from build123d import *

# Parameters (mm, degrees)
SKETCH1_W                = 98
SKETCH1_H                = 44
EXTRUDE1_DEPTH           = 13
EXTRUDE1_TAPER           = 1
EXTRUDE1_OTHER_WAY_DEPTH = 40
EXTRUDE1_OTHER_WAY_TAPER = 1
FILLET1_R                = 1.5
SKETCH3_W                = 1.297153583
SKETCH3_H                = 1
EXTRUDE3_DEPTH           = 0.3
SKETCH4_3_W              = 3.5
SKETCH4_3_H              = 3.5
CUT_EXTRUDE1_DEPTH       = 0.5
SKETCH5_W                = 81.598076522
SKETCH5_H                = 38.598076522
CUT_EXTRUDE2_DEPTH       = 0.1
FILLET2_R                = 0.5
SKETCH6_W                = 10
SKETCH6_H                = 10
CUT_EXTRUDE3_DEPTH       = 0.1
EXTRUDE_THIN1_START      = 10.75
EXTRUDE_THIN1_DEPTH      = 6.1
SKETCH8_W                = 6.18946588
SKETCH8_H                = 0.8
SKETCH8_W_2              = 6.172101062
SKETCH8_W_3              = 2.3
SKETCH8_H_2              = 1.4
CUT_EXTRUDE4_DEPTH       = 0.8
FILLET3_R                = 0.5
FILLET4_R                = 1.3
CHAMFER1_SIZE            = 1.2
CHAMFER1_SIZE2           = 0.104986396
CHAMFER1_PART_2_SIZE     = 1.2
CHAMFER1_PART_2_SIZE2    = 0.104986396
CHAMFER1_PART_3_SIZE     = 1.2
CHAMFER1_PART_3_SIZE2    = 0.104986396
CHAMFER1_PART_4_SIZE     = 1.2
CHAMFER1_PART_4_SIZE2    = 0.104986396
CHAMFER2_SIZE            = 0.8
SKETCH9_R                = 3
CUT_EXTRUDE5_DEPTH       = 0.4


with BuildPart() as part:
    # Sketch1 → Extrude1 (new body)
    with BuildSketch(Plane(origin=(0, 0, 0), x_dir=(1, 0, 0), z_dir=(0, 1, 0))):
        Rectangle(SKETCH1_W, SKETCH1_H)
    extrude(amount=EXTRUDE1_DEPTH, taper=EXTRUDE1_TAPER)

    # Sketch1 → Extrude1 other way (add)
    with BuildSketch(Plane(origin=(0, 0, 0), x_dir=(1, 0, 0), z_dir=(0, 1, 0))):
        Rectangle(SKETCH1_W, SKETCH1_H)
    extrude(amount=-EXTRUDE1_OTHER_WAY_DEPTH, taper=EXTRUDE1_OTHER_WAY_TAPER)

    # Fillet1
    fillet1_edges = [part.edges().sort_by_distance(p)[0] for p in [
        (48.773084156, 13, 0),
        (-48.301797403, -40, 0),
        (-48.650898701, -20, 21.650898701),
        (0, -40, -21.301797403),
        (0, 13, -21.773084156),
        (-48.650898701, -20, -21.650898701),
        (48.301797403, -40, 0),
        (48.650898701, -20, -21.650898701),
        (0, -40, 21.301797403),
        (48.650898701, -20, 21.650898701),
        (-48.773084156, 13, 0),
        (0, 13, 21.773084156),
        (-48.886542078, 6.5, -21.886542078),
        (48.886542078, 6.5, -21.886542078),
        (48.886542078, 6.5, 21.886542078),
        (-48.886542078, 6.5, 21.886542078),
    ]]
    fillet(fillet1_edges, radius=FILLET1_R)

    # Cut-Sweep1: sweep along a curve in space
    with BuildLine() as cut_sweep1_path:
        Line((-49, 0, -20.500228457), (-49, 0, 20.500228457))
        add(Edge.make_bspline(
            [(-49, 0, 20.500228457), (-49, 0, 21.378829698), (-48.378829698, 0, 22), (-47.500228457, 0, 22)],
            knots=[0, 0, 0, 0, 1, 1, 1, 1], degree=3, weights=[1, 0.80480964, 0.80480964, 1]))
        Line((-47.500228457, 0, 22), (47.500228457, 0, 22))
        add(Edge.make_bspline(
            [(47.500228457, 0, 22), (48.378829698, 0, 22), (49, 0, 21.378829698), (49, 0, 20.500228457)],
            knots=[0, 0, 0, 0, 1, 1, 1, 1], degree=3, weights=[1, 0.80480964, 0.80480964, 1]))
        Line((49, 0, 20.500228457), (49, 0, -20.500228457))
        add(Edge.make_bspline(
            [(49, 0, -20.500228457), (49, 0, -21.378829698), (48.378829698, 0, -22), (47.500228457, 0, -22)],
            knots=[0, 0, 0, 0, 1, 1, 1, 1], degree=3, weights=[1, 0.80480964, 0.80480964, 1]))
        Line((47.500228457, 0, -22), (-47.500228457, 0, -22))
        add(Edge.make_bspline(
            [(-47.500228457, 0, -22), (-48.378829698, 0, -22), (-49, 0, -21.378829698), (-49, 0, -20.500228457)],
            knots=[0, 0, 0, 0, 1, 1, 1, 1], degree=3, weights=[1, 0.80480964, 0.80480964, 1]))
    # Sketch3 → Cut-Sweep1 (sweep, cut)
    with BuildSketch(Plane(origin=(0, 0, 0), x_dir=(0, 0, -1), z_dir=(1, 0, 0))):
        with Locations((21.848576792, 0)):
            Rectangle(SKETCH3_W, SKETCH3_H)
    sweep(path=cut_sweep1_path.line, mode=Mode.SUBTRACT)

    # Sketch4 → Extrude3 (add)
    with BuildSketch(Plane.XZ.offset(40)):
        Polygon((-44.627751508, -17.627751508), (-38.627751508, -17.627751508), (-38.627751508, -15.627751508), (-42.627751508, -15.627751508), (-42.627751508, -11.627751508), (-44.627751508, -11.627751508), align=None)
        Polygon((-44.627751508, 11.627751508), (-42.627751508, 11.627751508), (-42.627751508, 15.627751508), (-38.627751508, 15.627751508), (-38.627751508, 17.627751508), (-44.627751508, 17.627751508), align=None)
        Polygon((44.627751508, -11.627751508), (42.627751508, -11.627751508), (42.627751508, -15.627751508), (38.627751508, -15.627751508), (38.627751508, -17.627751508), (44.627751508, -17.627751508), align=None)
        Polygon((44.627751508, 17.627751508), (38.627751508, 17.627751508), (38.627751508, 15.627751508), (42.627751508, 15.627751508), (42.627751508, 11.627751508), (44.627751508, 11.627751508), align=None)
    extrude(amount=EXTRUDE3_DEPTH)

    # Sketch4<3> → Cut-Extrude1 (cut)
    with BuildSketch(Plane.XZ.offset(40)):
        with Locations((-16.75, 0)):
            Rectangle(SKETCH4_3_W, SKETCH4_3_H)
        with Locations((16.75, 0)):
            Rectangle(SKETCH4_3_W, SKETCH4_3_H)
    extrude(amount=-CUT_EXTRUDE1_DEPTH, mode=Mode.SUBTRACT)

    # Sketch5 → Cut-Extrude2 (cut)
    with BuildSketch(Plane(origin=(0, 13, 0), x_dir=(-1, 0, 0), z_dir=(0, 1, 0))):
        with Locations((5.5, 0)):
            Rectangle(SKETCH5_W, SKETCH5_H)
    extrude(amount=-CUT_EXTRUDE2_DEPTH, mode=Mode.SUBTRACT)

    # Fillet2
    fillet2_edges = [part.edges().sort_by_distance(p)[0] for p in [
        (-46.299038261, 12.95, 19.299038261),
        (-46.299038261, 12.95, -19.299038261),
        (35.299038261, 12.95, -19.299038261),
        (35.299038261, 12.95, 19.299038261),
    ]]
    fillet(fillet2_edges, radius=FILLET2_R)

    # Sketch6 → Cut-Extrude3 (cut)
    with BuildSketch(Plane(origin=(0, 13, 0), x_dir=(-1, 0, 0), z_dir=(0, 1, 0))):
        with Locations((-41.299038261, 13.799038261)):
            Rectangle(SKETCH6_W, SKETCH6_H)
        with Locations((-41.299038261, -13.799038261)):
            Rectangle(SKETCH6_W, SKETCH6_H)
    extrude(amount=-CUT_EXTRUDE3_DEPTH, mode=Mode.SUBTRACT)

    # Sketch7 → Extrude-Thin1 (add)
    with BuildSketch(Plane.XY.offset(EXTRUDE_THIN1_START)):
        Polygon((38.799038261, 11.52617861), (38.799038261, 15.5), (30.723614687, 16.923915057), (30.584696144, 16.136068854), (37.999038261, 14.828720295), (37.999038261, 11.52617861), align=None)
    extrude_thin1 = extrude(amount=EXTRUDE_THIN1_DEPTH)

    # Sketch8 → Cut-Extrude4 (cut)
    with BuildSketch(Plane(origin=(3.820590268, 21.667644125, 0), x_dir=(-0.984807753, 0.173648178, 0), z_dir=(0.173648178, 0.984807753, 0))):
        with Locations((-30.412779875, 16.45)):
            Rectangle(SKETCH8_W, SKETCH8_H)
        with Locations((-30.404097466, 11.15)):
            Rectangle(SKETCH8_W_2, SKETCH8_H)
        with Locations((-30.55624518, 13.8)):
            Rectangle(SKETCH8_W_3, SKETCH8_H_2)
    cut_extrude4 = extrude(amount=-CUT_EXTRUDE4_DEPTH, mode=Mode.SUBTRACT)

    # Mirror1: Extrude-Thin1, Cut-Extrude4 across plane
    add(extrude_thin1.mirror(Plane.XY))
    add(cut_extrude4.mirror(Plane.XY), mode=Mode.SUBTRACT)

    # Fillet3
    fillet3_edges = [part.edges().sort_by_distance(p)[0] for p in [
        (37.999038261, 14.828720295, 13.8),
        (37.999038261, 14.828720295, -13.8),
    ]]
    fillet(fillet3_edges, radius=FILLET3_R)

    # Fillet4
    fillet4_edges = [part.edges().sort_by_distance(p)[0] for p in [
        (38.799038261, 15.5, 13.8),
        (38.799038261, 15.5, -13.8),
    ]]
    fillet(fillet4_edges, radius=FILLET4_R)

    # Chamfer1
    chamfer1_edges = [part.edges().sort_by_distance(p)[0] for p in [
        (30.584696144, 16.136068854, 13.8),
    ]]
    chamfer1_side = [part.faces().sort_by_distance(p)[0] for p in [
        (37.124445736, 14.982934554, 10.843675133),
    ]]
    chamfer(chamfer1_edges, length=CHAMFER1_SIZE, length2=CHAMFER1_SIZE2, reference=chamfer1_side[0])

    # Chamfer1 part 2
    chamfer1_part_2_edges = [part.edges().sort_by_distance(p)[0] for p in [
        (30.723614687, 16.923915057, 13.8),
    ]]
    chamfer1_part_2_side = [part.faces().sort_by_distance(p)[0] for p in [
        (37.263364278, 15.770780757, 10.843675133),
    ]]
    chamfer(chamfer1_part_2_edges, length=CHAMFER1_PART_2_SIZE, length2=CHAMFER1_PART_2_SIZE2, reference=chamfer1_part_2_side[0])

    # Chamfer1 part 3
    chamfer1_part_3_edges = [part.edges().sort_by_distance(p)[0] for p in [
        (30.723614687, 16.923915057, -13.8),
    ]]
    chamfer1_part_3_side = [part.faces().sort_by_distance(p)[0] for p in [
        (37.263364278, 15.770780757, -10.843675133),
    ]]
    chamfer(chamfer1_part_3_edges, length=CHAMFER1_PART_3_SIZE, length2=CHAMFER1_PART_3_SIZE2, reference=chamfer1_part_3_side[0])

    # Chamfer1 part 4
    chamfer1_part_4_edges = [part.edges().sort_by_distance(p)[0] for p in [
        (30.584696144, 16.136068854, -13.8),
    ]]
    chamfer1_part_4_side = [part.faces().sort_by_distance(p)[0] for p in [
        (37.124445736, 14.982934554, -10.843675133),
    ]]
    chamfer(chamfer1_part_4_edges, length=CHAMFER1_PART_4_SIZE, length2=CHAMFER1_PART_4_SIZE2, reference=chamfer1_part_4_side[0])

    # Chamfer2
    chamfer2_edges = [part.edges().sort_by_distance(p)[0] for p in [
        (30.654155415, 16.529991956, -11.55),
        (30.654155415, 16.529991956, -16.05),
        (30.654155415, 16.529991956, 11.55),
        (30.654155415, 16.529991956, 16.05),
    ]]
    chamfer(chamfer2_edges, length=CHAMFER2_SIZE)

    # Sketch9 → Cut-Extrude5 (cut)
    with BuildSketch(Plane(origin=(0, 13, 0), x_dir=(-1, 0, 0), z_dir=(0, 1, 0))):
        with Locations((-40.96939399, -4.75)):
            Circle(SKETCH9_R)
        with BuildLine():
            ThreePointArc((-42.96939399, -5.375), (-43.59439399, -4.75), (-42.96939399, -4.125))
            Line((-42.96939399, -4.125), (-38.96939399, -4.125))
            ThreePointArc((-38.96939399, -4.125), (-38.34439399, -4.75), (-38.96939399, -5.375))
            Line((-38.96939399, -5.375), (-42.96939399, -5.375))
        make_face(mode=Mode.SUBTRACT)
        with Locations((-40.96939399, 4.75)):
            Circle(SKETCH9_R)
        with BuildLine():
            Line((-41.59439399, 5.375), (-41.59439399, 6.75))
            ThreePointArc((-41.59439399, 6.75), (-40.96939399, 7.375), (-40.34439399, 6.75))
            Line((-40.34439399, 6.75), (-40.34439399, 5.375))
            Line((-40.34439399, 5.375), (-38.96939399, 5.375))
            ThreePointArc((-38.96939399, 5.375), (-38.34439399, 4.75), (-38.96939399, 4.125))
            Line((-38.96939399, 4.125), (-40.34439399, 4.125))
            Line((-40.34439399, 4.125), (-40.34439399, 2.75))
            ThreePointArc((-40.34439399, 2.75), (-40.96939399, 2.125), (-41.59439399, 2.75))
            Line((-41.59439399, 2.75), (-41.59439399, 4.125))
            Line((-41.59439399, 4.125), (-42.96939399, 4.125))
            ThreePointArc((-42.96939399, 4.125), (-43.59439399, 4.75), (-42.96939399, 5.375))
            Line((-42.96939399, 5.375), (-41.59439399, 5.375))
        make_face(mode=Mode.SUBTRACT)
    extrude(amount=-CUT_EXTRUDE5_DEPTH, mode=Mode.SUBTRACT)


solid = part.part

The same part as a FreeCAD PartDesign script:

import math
import FreeCAD as App
import Part
import Sketcher

V = App.Vector
Q = App.Units.Quantity


def edges_at(feature, points):
    """Names of the edges that pass closest to the given points."""
    edges = feature.Shape.Edges
    near = lambda p: min(range(len(edges)), key=lambda i: edges[i].distToShape(Part.Vertex(*p))[0])
    return sorted({f"Edge{near(p) + 1}" for p in points})


def add_polygon(sketch, points):
    """Adds a closed chain of lines whose ends are joined by coincident constraints."""
    first, n = sketch.GeometryCount, len(points)
    for a, b in zip(points, points[1:] + points[:1]):
        sketch.addGeometry(Part.LineSegment(App.Vector(*a, 0), App.Vector(*b, 0)), False)
    for i in range(n):
        sketch.addConstraint(Sketcher.Constraint("Coincident", first + i, 2, first + (i + 1) % n, 1))

doc = App.newDocument("Part")
body = doc.addObject("PartDesign::Body", "Body")

# Sketch on XZ plane
sketch1 = body.newObject("Sketcher::SketchObject", "Sketch")
sketch1.AttachmentSupport = (doc.getObject("XZ_Plane"), [""])
sketch1.MapMode = "FlatFace"
add_polygon(sketch1, [(-49, -22), (-49, 22), (49, 22), (49, -22)])  # lines 0-3
sketch1.addConstraint([
    Sketcher.Constraint("Vertical", 0),
    Sketcher.Constraint("Horizontal", 1),
    Sketcher.Constraint("Vertical", 2),
    Sketcher.Constraint("Horizontal", 3),
    Sketcher.Constraint("Symmetric", 0, 2, 2, 2, -1, 1),
    Sketcher.Constraint("DistanceX", 1, 1, 1, 2, Q("98 mm")),
    Sketcher.Constraint("DistanceY", 0, 1, 0, 2, Q("44 mm")),
])
pad1 = body.newObject("PartDesign::Pad", "Pad")
pad1.Profile = sketch1
pad1.Length = 13
pad1.Reversed = True
pad1.TaperAngle = -1

# Sketch on XZ plane
sketch2 = body.newObject("Sketcher::SketchObject", "Sketch001")
sketch2.AttachmentSupport = (doc.getObject("XZ_Plane"), [""])
sketch2.MapMode = "FlatFace"
add_polygon(sketch2, [(-49, -22), (-49, 22), (49, 22), (49, -22)])  # lines 0-3
sketch2.addConstraint([
    Sketcher.Constraint("Vertical", 0),
    Sketcher.Constraint("Horizontal", 1),
    Sketcher.Constraint("Vertical", 2),
    Sketcher.Constraint("Horizontal", 3),
    Sketcher.Constraint("Symmetric", 0, 2, 2, 2, -1, 1),
    Sketcher.Constraint("DistanceX", 1, 1, 1, 2, Q("98 mm")),
    Sketcher.Constraint("DistanceY", 0, 1, 0, 2, Q("44 mm")),
])
pad2 = body.newObject("PartDesign::Pad", "Pad001")
pad2.Profile = sketch2
pad2.Length = 40
pad2.TaperAngle = -1
doc.recompute()

fillet = body.newObject("PartDesign::Fillet", "Fillet")
fillet.Base = (pad2, ["Edge1"])
fillet.UseAllEdges = True
fillet.Radius = 1.5

# Sketch on YZ plane
sketch3 = body.newObject("Sketcher::SketchObject", "Sketch002")
sketch3.AttachmentSupport = (doc.getObject("YZ_Plane"), [""])
sketch3.MapMode = "FlatFace"
add_polygon(sketch3, [(0.5, -21.2), (-0.5, -21.2), (-0.5, -22.5), (0.5, -22.5)])  # lines 0-3
sketch3.addConstraint([
    Sketcher.Constraint("Horizontal", 0),
    Sketcher.Constraint("Vertical", 1),
    Sketcher.Constraint("Horizontal", 2),
    Sketcher.Constraint("Vertical", 3),
    Sketcher.Constraint("DistanceX", 0, 2, 0, 1, Q("1 mm")),
    Sketcher.Constraint("DistanceX", 0, 2, -1, 1, Q("0.5 mm")),
    Sketcher.Constraint("DistanceY", 0, 2, -1, 1, Q("21.2 mm")),
    Sketcher.Constraint("DistanceY", 1, 2, 1, 1, Q("1.297154 mm")),
])

# Sketch on XZ plane
sketch4 = body.newObject("Sketcher::SketchObject", "Sketch003")
sketch4.AttachmentSupport = (doc.getObject("XZ_Plane"), [""])
sketch4.MapMode = "FlatFace"
sketch4.addGeometry([
    Part.LineSegment(V(-49, -20.500228, 0), V(-49, 20.500228, 0)),  # 0
    Part.BSplineCurve([V(-49, 20.500228, 0), V(-49, 21.37883, 0), V(-48.37883, 22, 0), V(-47.500228, 22, 0)], [4, 4], [0, 1], False, 3, [1, 0.80480964, 0.80480964, 1], False),  # 1
    Part.LineSegment(V(-47.500228, 22, 0), V(47.500228, 22, 0)),  # 2
    Part.BSplineCurve([V(47.500228, 22, 0), V(48.37883, 22, 0), V(49, 21.37883, 0), V(49, 20.500228, 0)], [4, 4], [0, 1], False, 3, [1, 0.80480964, 0.80480964, 1], False),  # 3
    Part.LineSegment(V(49, 20.500228, 0), V(49, -20.500228, 0)),  # 4
    Part.BSplineCurve([V(49, -20.500228, 0), V(49, -21.37883, 0), V(48.37883, -22, 0), V(47.500228, -22, 0)], [4, 4], [0, 1], False, 3, [1, 0.80480964, 0.80480964, 1], False),  # 5
    Part.LineSegment(V(47.500228, -22, 0), V(-47.500228, -22, 0)),  # 6
    Part.BSplineCurve([V(-47.500228, -22, 0), V(-48.37883, -22, 0), V(-49, -21.37883, 0), V(-49, -20.500228, 0)], [4, 4], [0, 1], False, 3, [1, 0.80480964, 0.80480964, 1], False),  # 7
], False)
sketch4.addConstraint([
    Sketcher.Constraint("Block", 1),
    Sketcher.Constraint("Block", 3),
    Sketcher.Constraint("Block", 5),
    Sketcher.Constraint("Block", 7),
    Sketcher.Constraint("Coincident", 0, 2, 1, 1),
    Sketcher.Constraint("Coincident", 1, 2, 2, 1),
    Sketcher.Constraint("Coincident", 2, 2, 3, 1),
    Sketcher.Constraint("Coincident", 3, 2, 4, 1),
    Sketcher.Constraint("Coincident", 4, 2, 5, 1),
    Sketcher.Constraint("Coincident", 5, 2, 6, 1),
    Sketcher.Constraint("Coincident", 6, 2, 7, 1),
    Sketcher.Constraint("Coincident", 7, 2, 0, 1),
])
doc.recompute()

subtractivepipe = body.newObject("PartDesign::SubtractivePipe", "SubtractivePipe")
subtractivepipe.Profile = sketch3
subtractivepipe.Spine = (sketch4, ["Edge1", "Edge2", "Edge3", "Edge4", "Edge5", "Edge6", "Edge7", "Edge8"])

# Sketch on XZ plane
sketch5 = body.newObject("Sketcher::SketchObject", "Sketch004")
sketch5.AttachmentSupport = (doc.getObject("XZ_Plane"), [""])
sketch5.MapMode = "FlatFace"
sketch5.AttachmentOffset = App.Placement(V(0, 0, 40), App.Rotation())
add_polygon(sketch5, [(-44.6, -17.6), (-38.6, -17.6), (-38.6, -15.6), (-42.6, -15.6), (-42.6, -11.6), (-44.6, -11.6)])  # lines 0-5
add_polygon(sketch5, [(-44.6, 11.6), (-42.6, 11.6), (-42.6, 15.6), (-38.6, 15.6), (-38.6, 17.6), (-44.6, 17.6)])  # lines 6-11
add_polygon(sketch5, [(44.6, -11.6), (42.6, -11.6), (42.6, -15.6), (38.6, -15.6), (38.6, -17.6), (44.6, -17.6)])  # lines 12-17
add_polygon(sketch5, [(44.6, 17.6), (38.6, 17.6), (38.6, 15.6), (42.6, 15.6), (42.6, 11.6), (44.6, 11.6)])  # lines 18-23
sketch5.addConstraint([
    Sketcher.Constraint("Horizontal", 0),
    Sketcher.Constraint("Vertical", 1),
    Sketcher.Constraint("Horizontal", 2),
    Sketcher.Constraint("Vertical", 3),
    Sketcher.Constraint("Horizontal", 4),
    Sketcher.Constraint("Vertical", 5),
    Sketcher.Constraint("Horizontal", 6),
    Sketcher.Constraint("Vertical", 7),
    Sketcher.Constraint("Horizontal", 8),
    Sketcher.Constraint("Vertical", 9),
    Sketcher.Constraint("Horizontal", 10),
    Sketcher.Constraint("Vertical", 11),
    Sketcher.Constraint("Horizontal", 12),
    Sketcher.Constraint("Vertical", 13),
    Sketcher.Constraint("Horizontal", 14),
    Sketcher.Constraint("Vertical", 15),
    Sketcher.Constraint("Horizontal", 16),
    Sketcher.Constraint("Vertical", 17),
    Sketcher.Constraint("Horizontal", 18),
    Sketcher.Constraint("Vertical", 19),
    Sketcher.Constraint("Horizontal", 20),
    Sketcher.Constraint("Vertical", 21),
    Sketcher.Constraint("Horizontal", 22),
    Sketcher.Constraint("Vertical", 23),
    Sketcher.Constraint("Symmetric", 6, 2, 12, 2, -1, 1),
    Sketcher.Constraint("Symmetric", 8, 2, 14, 2, -1, 1),
    Sketcher.Constraint("Symmetric", 10, 2, 16, 2, -1, 1),
    Sketcher.Constraint("Symmetric", 0, 2, 18, 2, -1, 1),
    Sketcher.Constraint("Symmetric", 2, 2, 20, 2, -1, 1),
    Sketcher.Constraint("Symmetric", 4, 2, 22, 2, -1, 1),
    Sketcher.Constraint("Symmetric", 3, 2, 12, 2, -2),
    Sketcher.Constraint("Symmetric", 1, 2, 14, 2, -2),
    Sketcher.Constraint("Symmetric", 5, 2, 16, 2, -2),
    Sketcher.Constraint("Equal", 22, 1),
    Sketcher.Constraint("Equal", 20, 3),
    Sketcher.Constraint("DistanceX", 0, 1, 0, 2, Q("6 mm")),
    Sketcher.Constraint("DistanceX", 2, 2, 2, 1, Q("4 mm")),
    Sketcher.Constraint("DistanceX", 0, 2, -1, 1, Q("38.627752 mm")),
    Sketcher.Constraint("DistanceY", 0, 2, -1, 1, Q("17.627752 mm")),
])
pad3 = body.newObject("PartDesign::Pad", "Pad002")
pad3.Profile = sketch5
pad3.Length = 0.3

# Sketch on XZ plane
sketch6 = body.newObject("Sketcher::SketchObject", "Sketch005")
sketch6.AttachmentSupport = (doc.getObject("XZ_Plane"), [""])
sketch6.MapMode = "FlatFace"
sketch6.AttachmentOffset = App.Placement(V(0, 0, 40), App.Rotation())
add_polygon(sketch6, [(-18.5, 1.8), (-18.5, -1.8), (-15, -1.8), (-15, 1.8)])  # lines 0-3
add_polygon(sketch6, [(15, 1.8), (15, -1.8), (18.5, -1.8), (18.5, 1.8)])  # lines 4-7
sketch6.addConstraint([
    Sketcher.Constraint("Vertical", 0),
    Sketcher.Constraint("Horizontal", 1),
    Sketcher.Constraint("Vertical", 2),
    Sketcher.Constraint("Horizontal", 3),
    Sketcher.Constraint("Vertical", 4),
    Sketcher.Constraint("Horizontal", 5),
    Sketcher.Constraint("Vertical", 6),
    Sketcher.Constraint("Horizontal", 7),
    Sketcher.Constraint("Symmetric", 2, 2, 4, 2, -1, 1),
    Sketcher.Constraint("Symmetric", 0, 2, 6, 2, -1, 1),
    Sketcher.Constraint("Horizontal", 1, 2, 4, 2),
    Sketcher.Constraint("Equal", 7, 0),
    Sketcher.Constraint("DistanceX", 1, 1, 1, 2, Q("3.5 mm")),
    Sketcher.Constraint("DistanceX", 1, 2, -1, 1, Q("15 mm")),
])
pocket1 = body.newObject("PartDesign::Pocket", "Pocket")
pocket1.Profile = sketch6
pocket1.Length = 0.5

# Sketch on XZ plane
sketch7 = body.newObject("Sketcher::SketchObject", "Sketch006")
sketch7.AttachmentSupport = (doc.getObject("XZ_Plane"), [""])
sketch7.MapMode = "FlatFace"
sketch7.AttachmentOffset = App.Placement(V(0, 0, -13), App.Rotation())
add_polygon(sketch7, [(35, 19), (35, -19), (-46, -19), (-46, 19)])  # lines 0-3
sketch7.addConstraint([
    Sketcher.Constraint("Vertical", 0),
    Sketcher.Constraint("Horizontal", 1),
    Sketcher.Constraint("Vertical", 2),
    Sketcher.Constraint("Horizontal", 3),
    Sketcher.Constraint("DistanceX", 1, 2, 1, 1, Q("81.598077 mm")),
    Sketcher.Constraint("DistanceY", 0, 2, 0, 1, Q("38.598077 mm")),
    Sketcher.Constraint("DistanceX", -1, 1, 0, 2, Q("35.299038 mm")),
    Sketcher.Constraint("DistanceY", 0, 2, -1, 1, Q("19.299038 mm")),
])
pocket2 = body.newObject("PartDesign::Pocket", "Pocket001")
pocket2.Profile = sketch7
pocket2.Length = 0.1
pocket2.Reversed = True
doc.recompute()

fillet2 = body.newObject("PartDesign::Fillet", "Fillet001")
fillet2.Base = (pocket2, edges_at(pocket2, [
    (-46.299, 12.95, 19.299),
    (-46.299, 12.95, -19.299),
    (35.299, 12.95, -19.299),
    (35.299, 12.95, 19.299),
]))
fillet2.Radius = 0.5

# Sketch on XZ plane
sketch8 = body.newObject("Sketcher::SketchObject", "Sketch007")
sketch8.AttachmentSupport = (doc.getObject("XZ_Plane"), [""])
sketch8.MapMode = "FlatFace"
sketch8.AttachmentOffset = App.Placement(V(0, 0, -13), App.Rotation())
add_polygon(sketch8, [(46, 19), (46, 9), (36, 9), (36, 19)])  # lines 0-3
add_polygon(sketch8, [(46, -9), (46, -19), (36, -19), (36, -9)])  # lines 4-7
sketch8.addConstraint([
    Sketcher.Constraint("Vertical", 0),
    Sketcher.Constraint("Horizontal", 1),
    Sketcher.Constraint("Vertical", 2),
    Sketcher.Constraint("Horizontal", 3),
    Sketcher.Constraint("Vertical", 4),
    Sketcher.Constraint("Horizontal", 5),
    Sketcher.Constraint("Vertical", 6),
    Sketcher.Constraint("Horizontal", 7),
    Sketcher.Constraint("Symmetric", 3, 2, 4, 2, -1),
    Sketcher.Constraint("Symmetric", 1, 2, 6, 2, -1),
    Sketcher.Constraint("Equal", 7, 0),
    Sketcher.Constraint("DistanceX", 1, 2, 1, 1, Q("10 mm")),
    Sketcher.Constraint("DistanceX", -1, 1, 0, 2, Q("46.299038 mm")),
    Sketcher.Constraint("DistanceY", -1, 1, 0, 2, Q("8.799038 mm")),
])
pocket3 = body.newObject("PartDesign::Pocket", "Pocket002")
pocket3.Profile = sketch8
pocket3.Length = 0.1
pocket3.Reversed = True

# Sketch on XY plane
sketch9 = body.newObject("Sketcher::SketchObject", "Sketch008")
sketch9.AttachmentSupport = (doc.getObject("XY_Plane"), [""])
sketch9.MapMode = "FlatFace"
sketch9.AttachmentOffset = App.Placement(V(0, 0, 10.75), App.Rotation())
add_polygon(sketch9, [(38.8, 11.5), (38.8, 15.5), (30.7, 16.9), (30.6, 16.1), (38, 14.8), (38, 11.5)])  # lines 0-5
sketch9.addConstraint([
    Sketcher.Constraint("Vertical", 0),
    Sketcher.Constraint("Vertical", 4),
    Sketcher.Constraint("Horizontal", 5),
    Sketcher.Constraint("Perpendicular", 1, 2),
    Sketcher.Constraint("Perpendicular", 2, 3),
    Sketcher.Constraint("Angle", 1, Q("170 deg")),
    Sketcher.Constraint("DistanceX", 5, 1, 5, 2, Q("0.8 mm")),
    Sketcher.Constraint("Distance", 1, Q("8.2 mm")),
    Sketcher.Constraint("Distance", 2, Q("0.8 mm")),
    Sketcher.Constraint("DistanceY", -1, 1, 0, 2, Q("15.5 mm")),
    Sketcher.Constraint("DistanceY", 0, 1, 0, 2, Q("3.973821 mm")),
    Sketcher.Constraint("DistanceX", -1, 1, 0, 2, Q("38.799038 mm")),
])
pad4 = body.newObject("PartDesign::Pad", "Pad003")
pad4.Profile = sketch9
pad4.Length = 6.1

# Sketch on an angled plane
sketch10 = body.newObject("Sketcher::SketchObject", "Sketch009")
sketch10.Placement = App.Placement(V(3.82059, 21.667644, 0), App.Rotation(V(-0.984807753, 0.173648178, 0), V(0, 0, 1), V(0.173648178, 0.984807753, 0), "ZXY"))
add_polygon(sketch10, [(-33.5, 16.9), (-33.5, 16.1), (-27.3, 16.1), (-27.3, 16.9)])  # lines 0-3
add_polygon(sketch10, [(-33.5, 11.6), (-33.5, 10.8), (-27.3, 10.8), (-27.3, 11.6)])  # lines 4-7
add_polygon(sketch10, [(-31.7, 14.5), (-31.7, 13.1), (-29.4, 13.1), (-29.4, 14.5)])  # lines 8-11
sketch10.addConstraint([
    Sketcher.Constraint("Vertical", 0),
    Sketcher.Constraint("Horizontal", 1),
    Sketcher.Constraint("Vertical", 2),
    Sketcher.Constraint("Horizontal", 3),
    Sketcher.Constraint("Vertical", 4),
    Sketcher.Constraint("Horizontal", 5),
    Sketcher.Constraint("Vertical", 6),
    Sketcher.Constraint("Horizontal", 7),
    Sketcher.Constraint("Vertical", 8),
    Sketcher.Constraint("Horizontal", 9),
    Sketcher.Constraint("Vertical", 10),
    Sketcher.Constraint("Horizontal", 11),
    Sketcher.Constraint("Vertical", 2, 2, 5, 2),
    Sketcher.Constraint("Equal", 2, 4),
    Sketcher.Constraint("DistanceX", 9, 1, 9, 2, Q("2.3 mm")),
    Sketcher.Constraint("DistanceY", 0, 2, 0, 1, Q("0.8 mm")),
    Sketcher.Constraint("DistanceY", 8, 2, 8, 1, Q("1.4 mm")),
    Sketcher.Constraint("DistanceY", -1, 1, 8, 2, Q("13.1 mm")),
    Sketcher.Constraint("DistanceY", 4, 2, 0, 2, Q("5.3 mm")),
    Sketcher.Constraint("DistanceY", -1, 1, 0, 2, Q("16.05 mm")),
    Sketcher.Constraint("DistanceX", 5, 1, 5, 2, Q("6.172101 mm")),
    Sketcher.Constraint("DistanceX", 8, 2, 6, 2, Q("4.388198 mm")),
    Sketcher.Constraint("DistanceX", 1, 1, 1, 2, Q("6.189466 mm")),
    Sketcher.Constraint("DistanceX", 0, 2, -1, 1, Q("33.507513 mm")),
])
pocket4 = body.newObject("PartDesign::Pocket", "Pocket003")
pocket4.Profile = sketch10
pocket4.Length = 0.8
doc.recompute()

mirrored = body.newObject("PartDesign::Mirrored", "Mirrored")
mirrored.Originals = [pad4, pocket4]
mirrored.MirrorPlane = (doc.getObject("XY_Plane"), [""])
body.Tip = mirrored
doc.recompute()

fillet3 = body.newObject("PartDesign::Fillet", "Fillet002")
fillet3.Base = (mirrored, edges_at(mirrored, [(37.999, 14.829, 13.8), (37.999, 14.829, -13.8)]))
fillet3.Radius = 0.5
doc.recompute()

fillet4 = body.newObject("PartDesign::Fillet", "Fillet003")
fillet4.Base = (fillet3, edges_at(fillet3, [(38.799, 15.5, 13.8), (38.799, 15.5, -13.8)]))
fillet4.Radius = 1.3
doc.recompute()

chamfer = body.newObject("PartDesign::Chamfer", "Chamfer")
chamfer.Base = (fillet4, edges_at(fillet4, [(30.585, 16.136, 13.8)]))
chamfer.ChamferType = "Two distances"
chamfer.Size = 1.2
chamfer.Size2 = 0.104986
doc.recompute()

chamfer2 = body.newObject("PartDesign::Chamfer", "Chamfer001")
chamfer2.Base = (chamfer, edges_at(chamfer, [(30.724, 16.924, 13.8)]))
chamfer2.ChamferType = "Two distances"
chamfer2.Size = 1.2
chamfer2.Size2 = 0.104986
chamfer2.FlipDirection = True
doc.recompute()

chamfer3 = body.newObject("PartDesign::Chamfer", "Chamfer002")
chamfer3.Base = (chamfer2, edges_at(chamfer2, [(30.724, 16.924, -13.8)]))
chamfer3.ChamferType = "Two distances"
chamfer3.Size = 1.2
chamfer3.Size2 = 0.104986
doc.recompute()

chamfer4 = body.newObject("PartDesign::Chamfer", "Chamfer003")
chamfer4.Base = (chamfer3, edges_at(chamfer3, [(30.585, 16.136, -13.8)]))
chamfer4.ChamferType = "Two distances"
chamfer4.Size = 1.2
chamfer4.Size2 = 0.104986
chamfer4.FlipDirection = True
doc.recompute()

chamfer5 = body.newObject("PartDesign::Chamfer", "Chamfer004")
chamfer5.Base = (chamfer4, edges_at(chamfer4, [
    (30.654, 16.53, -11.55),
    (30.654, 16.53, -16.05),
    (30.654, 16.53, 11.55),
    (30.654, 16.53, 16.05),
]))
chamfer5.Size = 0.8

# Sketch on XZ plane
sketch11 = body.newObject("Sketcher::SketchObject", "Sketch010")
sketch11.AttachmentSupport = (doc.getObject("XZ_Plane"), [""])
sketch11.MapMode = "FlatFace"
sketch11.AttachmentOffset = App.Placement(V(0, 0, -13), App.Rotation())
sketch11.addGeometry([
    Part.Circle(V(41, -4.8, 0), V(0, 0, 1), 3),  # 0
    Part.LineSegment(V(39, -5.4, 0), V(43, -5.4, 0)),  # 1
    Part.ArcOfCircle(Part.Circle(V(43, -4.8, 0), V(0, 0, 1), 0.6), math.radians(-90), math.radians(90)),  # 2
    Part.LineSegment(V(43, -4.1, 0), V(39, -4.1, 0)),  # 3
    Part.ArcOfCircle(Part.Circle(V(39, -4.8, 0), V(0, 0, 1), 0.6), math.radians(90), math.radians(270)),  # 4
    Part.Circle(V(41, 4.8, 0), V(0, 0, 1), 3),  # 5
    Part.LineSegment(V(43, 5.4, 0), V(41.6, 5.4, 0)),  # 6
    Part.LineSegment(V(41.6, 5.4, 0), V(41.6, 6.8, 0)),  # 7
    Part.ArcOfCircle(Part.Circle(V(41, 6.8, 0), V(0, 0, 1), 0.6), math.radians(0), math.radians(180)),  # 8
    Part.LineSegment(V(40.3, 6.8, 0), V(40.3, 5.4, 0)),  # 9
    Part.LineSegment(V(40.3, 5.4, 0), V(39, 5.4, 0)),  # 10
    Part.ArcOfCircle(Part.Circle(V(39, 4.8, 0), V(0, 0, 1), 0.6), math.radians(90), math.radians(270)),  # 11
    Part.LineSegment(V(39, 4.1, 0), V(40.3, 4.1, 0)),  # 12
    Part.LineSegment(V(40.3, 4.1, 0), V(40.3, 2.8, 0)),  # 13
    Part.ArcOfCircle(Part.Circle(V(41, 2.8, 0), V(0, 0, 1), 0.6), math.radians(180), math.radians(360)),  # 14
    Part.LineSegment(V(41.6, 2.8, 0), V(41.6, 4.1, 0)),  # 15
    Part.LineSegment(V(41.6, 4.1, 0), V(43, 4.1, 0)),  # 16
    Part.ArcOfCircle(Part.Circle(V(43, 4.8, 0), V(0, 0, 1), 0.6), math.radians(-90), math.radians(90)),  # 17
], False)
sketch11.addConstraint([
    Sketcher.Constraint("Tangent", 1, 2, 2, 1),
    Sketcher.Constraint("Tangent", 2, 2, 3, 1),
    Sketcher.Constraint("Tangent", 3, 2, 4, 1),
    Sketcher.Constraint("Tangent", 4, 2, 1, 1),
    Sketcher.Constraint("Coincident", 6, 2, 7, 1),
    Sketcher.Constraint("Tangent", 7, 2, 8, 1),
    Sketcher.Constraint("Tangent", 8, 2, 9, 1),
    Sketcher.Constraint("Coincident", 9, 2, 10, 1),
    Sketcher.Constraint("Tangent", 10, 2, 11, 1),
    Sketcher.Constraint("Tangent", 11, 2, 12, 1),
    Sketcher.Constraint("Coincident", 12, 2, 13, 1),
    Sketcher.Constraint("Tangent", 13, 2, 14, 1),
    Sketcher.Constraint("Tangent", 14, 2, 15, 1),
    Sketcher.Constraint("Coincident", 15, 2, 16, 1),
    Sketcher.Constraint("Tangent", 16, 2, 17, 1),
    Sketcher.Constraint("Tangent", 17, 2, 6, 1),
    Sketcher.Constraint("Horizontal", 1),
    Sketcher.Constraint("Horizontal", 3),
    Sketcher.Constraint("Horizontal", 6),
    Sketcher.Constraint("Vertical", 7),
    Sketcher.Constraint("Vertical", 9),
    Sketcher.Constraint("Horizontal", 10),
    Sketcher.Constraint("Horizontal", 12),
    Sketcher.Constraint("Vertical", 13),
    Sketcher.Constraint("Vertical", 15),
    Sketcher.Constraint("Horizontal", 16),
    Sketcher.Constraint("Equal", 0, 5),
    Sketcher.Constraint("Equal", 4, 8),
    Sketcher.Constraint("Equal", 8, 11),
    Sketcher.Constraint("Equal", 11, 14),
    Sketcher.Constraint("Equal", 14, 17),
    Sketcher.Constraint("Symmetric", 0, 3, 5, 3, -1),
    Sketcher.Constraint("Symmetric", 4, 3, 11, 3, -1),
    Sketcher.Constraint("Symmetric", 2, 3, 17, 3, -1),
    Sketcher.Constraint("Horizontal", 0, 3, 2, 3),
    Sketcher.Constraint("Vertical", 5, 3, 8, 3),
    Sketcher.Constraint("Vertical", 8, 3, 14, 3),
    Sketcher.Constraint("Equal", 6, 10),
    Sketcher.Constraint("Equal", 16, 7),
    Sketcher.Constraint("Equal", 9, 13),
    Sketcher.Constraint("Diameter", 0, Q("6 mm")),
    Sketcher.Constraint("DistanceX", 1, 1, 1, 2, Q("4 mm")),
    Sketcher.Constraint("Radius", 2, Q("0.625 mm")),
    Sketcher.Constraint("DistanceY", 0, 3, 5, 3, Q("9.5 mm")),
    Sketcher.Constraint("DistanceX", -1, 1, 0, 3, Q("40.969394 mm")),
])
pocket5 = body.newObject("PartDesign::Pocket", "Pocket004")
pocket5.Profile = sketch11
pocket5.Length = 0.4
pocket5.Reversed = True

doc.recompute()
